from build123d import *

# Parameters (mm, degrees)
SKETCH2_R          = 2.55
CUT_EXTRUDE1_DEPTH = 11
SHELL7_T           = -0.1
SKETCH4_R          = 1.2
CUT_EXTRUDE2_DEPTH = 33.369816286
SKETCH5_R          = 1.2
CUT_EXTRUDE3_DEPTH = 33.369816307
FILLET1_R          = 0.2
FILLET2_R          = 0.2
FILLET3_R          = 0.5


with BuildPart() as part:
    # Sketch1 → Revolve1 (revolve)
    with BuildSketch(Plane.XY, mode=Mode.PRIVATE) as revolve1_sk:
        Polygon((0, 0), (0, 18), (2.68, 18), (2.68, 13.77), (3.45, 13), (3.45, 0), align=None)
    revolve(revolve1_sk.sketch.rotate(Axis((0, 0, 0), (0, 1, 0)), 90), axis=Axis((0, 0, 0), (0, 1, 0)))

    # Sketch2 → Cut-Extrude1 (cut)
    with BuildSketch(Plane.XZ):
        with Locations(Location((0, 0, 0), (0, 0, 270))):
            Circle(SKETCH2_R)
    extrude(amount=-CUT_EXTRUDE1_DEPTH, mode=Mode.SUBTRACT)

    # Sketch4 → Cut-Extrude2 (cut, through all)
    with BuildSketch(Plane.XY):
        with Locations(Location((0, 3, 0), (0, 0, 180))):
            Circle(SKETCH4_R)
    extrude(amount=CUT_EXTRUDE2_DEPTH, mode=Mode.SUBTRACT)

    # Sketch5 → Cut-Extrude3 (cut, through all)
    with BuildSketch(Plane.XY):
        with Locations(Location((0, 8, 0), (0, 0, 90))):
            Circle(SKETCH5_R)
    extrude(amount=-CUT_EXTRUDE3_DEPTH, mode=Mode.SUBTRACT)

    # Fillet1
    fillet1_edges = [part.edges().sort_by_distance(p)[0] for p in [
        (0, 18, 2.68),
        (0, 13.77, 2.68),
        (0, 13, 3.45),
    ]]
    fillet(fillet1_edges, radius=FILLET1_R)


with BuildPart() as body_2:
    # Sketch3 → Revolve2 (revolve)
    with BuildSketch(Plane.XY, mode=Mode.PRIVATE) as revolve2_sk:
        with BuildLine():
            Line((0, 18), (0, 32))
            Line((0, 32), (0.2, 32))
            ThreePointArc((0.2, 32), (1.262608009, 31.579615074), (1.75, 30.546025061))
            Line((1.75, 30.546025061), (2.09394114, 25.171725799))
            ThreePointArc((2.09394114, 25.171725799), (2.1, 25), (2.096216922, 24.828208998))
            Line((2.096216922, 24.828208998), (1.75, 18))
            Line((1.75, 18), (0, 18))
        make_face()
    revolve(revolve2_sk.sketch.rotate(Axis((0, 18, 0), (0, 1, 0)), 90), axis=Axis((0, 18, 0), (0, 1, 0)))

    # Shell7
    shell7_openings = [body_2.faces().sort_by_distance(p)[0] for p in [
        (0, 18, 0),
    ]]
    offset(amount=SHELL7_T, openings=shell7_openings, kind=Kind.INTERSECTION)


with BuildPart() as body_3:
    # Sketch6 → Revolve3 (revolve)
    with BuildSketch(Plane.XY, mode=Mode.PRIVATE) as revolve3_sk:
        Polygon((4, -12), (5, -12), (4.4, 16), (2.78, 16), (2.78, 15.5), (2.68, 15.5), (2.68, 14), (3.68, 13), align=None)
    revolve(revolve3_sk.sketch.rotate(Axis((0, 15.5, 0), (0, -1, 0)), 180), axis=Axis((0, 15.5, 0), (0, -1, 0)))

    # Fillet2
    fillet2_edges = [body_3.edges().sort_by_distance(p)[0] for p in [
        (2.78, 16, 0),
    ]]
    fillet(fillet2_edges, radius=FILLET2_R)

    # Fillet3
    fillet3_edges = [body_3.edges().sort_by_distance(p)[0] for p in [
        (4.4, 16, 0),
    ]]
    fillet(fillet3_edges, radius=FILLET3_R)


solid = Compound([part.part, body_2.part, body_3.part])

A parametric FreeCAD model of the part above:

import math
import FreeCAD as App
import Part
import Sketcher
Q = App.Units.Quantity


def edges_at(feature, points):
    """Names of the edges that pass closest to the given points."""
    edges = feature.Shape.Edges
    near = lambda p: min(range(len(edges)), key=lambda i: edges[i].distToShape(Part.Vertex(*p))[0])
    return sorted({f"Edge{near(p) + 1}" for p in points})


def faces_at(feature, points):
    """Names of the faces that lie closest to the given points."""
    faces = feature.Shape.Faces
    near = lambda p: min(range(len(faces)), key=lambda i: faces[i].distToShape(Part.Vertex(*p))[0])
    return sorted({f"Face{near(p) + 1}" for p in points})


def add_polygon(sketch, points):
    """Adds a closed chain of lines whose ends are joined by coincident constraints."""
    first, n = sketch.GeometryCount, len(points)
    for a, b in zip(points, points[1:] + points[:1]):
        sketch.addGeometry(Part.LineSegment(App.Vector(*a, 0), App.Vector(*b, 0)), False)
    for i in range(n):
        sketch.addConstraint(Sketcher.Constraint("Coincident", first + i, 2, first + (i + 1) % n, 1))

doc = App.newDocument("Part")
body = doc.addObject("PartDesign::Body", "Body")

# Sketch on XY plane
sketch1 = doc.addObject("Sketcher::SketchObject", "Sketch")
body.addObject(sketch1)
sketch1.AttachmentSupport = (doc.XY_Plane, [""])
sketch1.MapMode = "FlatFace"
add_polygon(sketch1, [(0, 18), (0, 0), (3.45, 0), (3.45, 13), (2.68, 13.77), (2.68, 18)])  # lines 0-5
sketch1.addConstraint([
    Sketcher.Constraint("Vertical", 0),
    Sketcher.Constraint("Horizontal", 1),
    Sketcher.Constraint("Vertical", 2),
    Sketcher.Constraint("Vertical", 4),
    Sketcher.Constraint("Horizontal", 5),
    Sketcher.Constraint("Coincident", 0, 2, -1, 1),
    Sketcher.Constraint("DistanceY", 0, 2, 0, 1, 18.0),
    Sketcher.Constraint("DistanceY", 2, 1, 2, 2, 13.0),
    Sketcher.Constraint("Angle", 3, Q("135 deg")),
    Sketcher.Constraint("DistanceX", 1, 1, 1, 2, 3.45),
    Sketcher.Constraint("DistanceX", 5, 2, 5, 1, 2.68),
])
revolution = doc.addObject("PartDesign::Revolution", "Revolution")
body.addObject(revolution)
revolution.Profile = sketch1
revolution.ReferenceAxis = (sketch1, ["V_Axis"])
revolution.Angle = 360

# Sketch on XZ plane
sketch2 = doc.addObject("Sketcher::SketchObject", "Sketch001")
body.addObject(sketch2)
sketch2.AttachmentSupport = (doc.XZ_Plane, [""])
sketch2.MapMode = "FlatFace"
sketch2.addGeometry(Part.Circle(App.Vector(0, 0, 0), App.Vector(0, 0, 1), 2.55), False)
sketch2.addConstraint([
    Sketcher.Constraint("Coincident", 0, 3, -1, 1),
    Sketcher.Constraint("Diameter", 0, 5.1),
])
pocket1 = doc.addObject("PartDesign::Pocket", "Pocket")
body.addObject(pocket1)
pocket1.Profile = sketch2
pocket1.Length = 11

# Sketch on XY plane
sketch3 = doc.addObject("Sketcher::SketchObject", "Sketch002")
body.addObject(sketch3)
sketch3.AttachmentSupport = (doc.XY_Plane, [""])
sketch3.MapMode = "FlatFace"
sketch3.addGeometry(Part.Circle(App.Vector(0, 3, 0), App.Vector(0, 0, 1), 1.2), False)
sketch3.addConstraint([
    Sketcher.Constraint("PointOnObject", 0, 3, -2),
    Sketcher.Constraint("Diameter", 0, 2.4),
    Sketcher.Constraint("DistanceY", -1, 1, 0, 3, 3.0),
])
pocket2 = doc.addObject("PartDesign::Pocket", "Pocket001")
body.addObject(pocket2)
pocket2.Profile = sketch3
pocket2.Type = "ThroughAll"
pocket2.Reversed = True

# Sketch on XY plane
sketch4 = doc.addObject("Sketcher::SketchObject", "Sketch003")
body.addObject(sketch4)
sketch4.AttachmentSupport = (doc.XY_Plane, [""])
sketch4.MapMode = "FlatFace"
sketch4.addGeometry(Part.Circle(App.Vector(0, 8, 0), App.Vector(0, 0, 1), 1.2), False)
sketch4.addConstraint([
    Sketcher.Constraint("PointOnObject", 0, 3, -2),
    Sketcher.Constraint("Diameter", 0, 2.4),
    Sketcher.Constraint("DistanceY", -1, 1, 0, 3, 8.0),
])
pocket3 = doc.addObject("PartDesign::Pocket", "Pocket002")
body.addObject(pocket3)
pocket3.Profile = sketch4
pocket3.Type = "ThroughAll"
doc.recompute()

fillet = doc.addObject("PartDesign::Fillet", "Fillet")
body.addObject(fillet)
fillet.Base = (pocket3, edges_at(pocket3, [(0, 18, 2.68), (0, 13.77, 2.68), (0, 13, 3.45)]))
fillet.Radius = 0.2
body2 = doc.addObject("PartDesign::Body", "Body001")

# Sketch on XY plane
sketch5 = doc.addObject("Sketcher::SketchObject", "Sketch004")
body2.addObject(sketch5)
sketch5.AttachmentSupport = (doc.getObject("XY_Plane001"), [""])
sketch5.MapMode = "FlatFace"
sketch5.addGeometry([
    Part.LineSegment(App.Vector(0, 32, 0), App.Vector(0, 18, 0)),  # 0
    Part.LineSegment(App.Vector(0, 18, 0), App.Vector(1.75, 18, 0)),  # 1
    Part.LineSegment(App.Vector(1.75, 18, 0), App.Vector(2.096217, 24.828209, 0)),  # 2
    Part.ArcOfCircle(Part.Circle(App.Vector(-0.899934, 24.980126, 0), App.Vector(0, 0, 1), 3), math.radians(-2.902635), math.radians(3.661787)),  # 3
    Part.LineSegment(App.Vector(2.093941, 25.171726, 0), App.Vector(1.75, 30.546025, 0)),  # 4
    Part.ArcOfCircle(Part.Circle(App.Vector(0.2, 30.446829, 0), App.Vector(0, 0, 1), 1.553171), math.radians(3.661787), math.radians(90)),  # 5
    Part.LineSegment(App.Vector(0.2, 32, 0), App.Vector(0, 32, 0)),  # 6
], False)
sketch5.addConstraint([
    Sketcher.Constraint("Coincident", 0, 2, 1, 1),
    Sketcher.Constraint("Coincident", 1, 2, 2, 1),
    Sketcher.Constraint("Tangent", 2, 2, 3, 1),
    Sketcher.Constraint("Tangent", 3, 2, 4, 1),
    Sketcher.Constraint("Tangent", 4, 2, 5, 1),
    Sketcher.Constraint("Tangent", 5, 2, 6, 1),
    Sketcher.Constraint("Coincident", 6, 2, 0, 1),
    Sketcher.Constraint("Vertical", 0),
    Sketcher.Constraint("Horizontal", 1),
    Sketcher.Constraint("Horizontal", 6),
    Sketcher.Constraint("PointOnObject", 0, 2, -2),
    Sketcher.Constraint("Vertical", 1, 2, 4, 2),
    Sketcher.Constraint("Radius", 3, 3.0),
    Sketcher.Constraint("DistanceY", 0, 2, 0, 1, 14.0),
    Sketcher.Constraint("DistanceX", 6, 2, 6, 1, 0.2),
    Sketcher.Constraint("DistanceY", -1, 1, 0, 2, 18.0),
    Sketcher.Constraint("DistanceX", 1, 1, 1, 2, 1.75),
    Sketcher.Constraint("Radius", 5, 1.553171),
    Sketcher.Constraint("DistanceY", 3, 2, 4, 2, 5.374299),
])
revolution2 = doc.addObject("PartDesign::Revolution", "Revolution001")
body2.addObject(revolution2)
revolution2.Profile = sketch5
revolution2.ReferenceAxis = (sketch5, ["V_Axis"])
revolution2.Angle = 360
doc.recompute()

thickness = doc.addObject("PartDesign::Thickness", "Thickness")
body2.addObject(thickness)
thickness.Base = (revolution2, faces_at(revolution2, [(0, 18, 0)]))
thickness.Value = 0.1
thickness.Reversed = True
thickness.Join = "Intersection"
body3 = doc.addObject("PartDesign::Body", "Body002")

# Sketch on XY plane
sketch6 = doc.addObject("Sketcher::SketchObject", "Sketch005")
body3.addObject(sketch6)
sketch6.AttachmentSupport = (doc.getObject("XY_Plane002"), [""])
sketch6.MapMode = "FlatFace"
add_polygon(sketch6, [(4, -12), (5, -12), (4.4, 16), (2.78, 16), (2.78, 15.5), (2.68, 15.5), (2.68, 14), (3.68, 13)])  # lines 0-7
sketch6.addConstraint([
    Sketcher.Constraint("Horizontal", 0),
    Sketcher.Constraint("Horizontal", 2),
    Sketcher.Constraint("Vertical", 3),
    Sketcher.Constraint("Horizontal", 4),
    Sketcher.Constraint("Vertical", 5),
    Sketcher.Constraint("DistanceX", 0, 1, 0, 2, 1.0),
    Sketcher.Constraint("Angle", 6, Q("-45 deg")),
    Sketcher.Constraint("DistanceX", 4, 2, 4, 1, 0.1),
    Sketcher.Constraint("DistanceY", 3, 2, 3, 1, 0.5),
    Sketcher.Constraint("DistanceY", 5, 2, 5, 1, 1.5),
    Sketcher.Constraint("DistanceX", -1, 1, 0, 2, 5.0),
    Sketcher.Constraint("DistanceY", 0, 2, -1, 1, 12.0),
    Sketcher.Constraint("DistanceY", -1, 1, 1, 2, 16.0),
    Sketcher.Constraint("DistanceY", -1, 1, 6, 2, 13.0),
    Sketcher.Constraint("DistanceX", 2, 2, 2, 1, 1.62),
    Sketcher.Constraint("DistanceX", -1, 1, 1, 2, 4.4),
])
revolution3 = doc.addObject("PartDesign::Revolution", "Revolution002")
body3.addObject(revolution3)
revolution3.Profile = sketch6
revolution3.ReferenceAxis = (sketch6, ["V_Axis"])
revolution3.Angle = 360
doc.recompute()

fillet2 = doc.addObject("PartDesign::Fillet", "Fillet001")
body3.addObject(fillet2)
fillet2.Base = (revolution3, edges_at(revolution3, [(2.78, 16, 0)]))
fillet2.Radius = 0.2
doc.recompute()

fillet3 = doc.addObject("PartDesign::Fillet", "Fillet002")
body3.addObject(fillet3)
fillet3.Base = (fillet2, edges_at(fillet2, [(4.4, 16, 0)]))
fillet3.Radius = 0.5

doc.recompute()
